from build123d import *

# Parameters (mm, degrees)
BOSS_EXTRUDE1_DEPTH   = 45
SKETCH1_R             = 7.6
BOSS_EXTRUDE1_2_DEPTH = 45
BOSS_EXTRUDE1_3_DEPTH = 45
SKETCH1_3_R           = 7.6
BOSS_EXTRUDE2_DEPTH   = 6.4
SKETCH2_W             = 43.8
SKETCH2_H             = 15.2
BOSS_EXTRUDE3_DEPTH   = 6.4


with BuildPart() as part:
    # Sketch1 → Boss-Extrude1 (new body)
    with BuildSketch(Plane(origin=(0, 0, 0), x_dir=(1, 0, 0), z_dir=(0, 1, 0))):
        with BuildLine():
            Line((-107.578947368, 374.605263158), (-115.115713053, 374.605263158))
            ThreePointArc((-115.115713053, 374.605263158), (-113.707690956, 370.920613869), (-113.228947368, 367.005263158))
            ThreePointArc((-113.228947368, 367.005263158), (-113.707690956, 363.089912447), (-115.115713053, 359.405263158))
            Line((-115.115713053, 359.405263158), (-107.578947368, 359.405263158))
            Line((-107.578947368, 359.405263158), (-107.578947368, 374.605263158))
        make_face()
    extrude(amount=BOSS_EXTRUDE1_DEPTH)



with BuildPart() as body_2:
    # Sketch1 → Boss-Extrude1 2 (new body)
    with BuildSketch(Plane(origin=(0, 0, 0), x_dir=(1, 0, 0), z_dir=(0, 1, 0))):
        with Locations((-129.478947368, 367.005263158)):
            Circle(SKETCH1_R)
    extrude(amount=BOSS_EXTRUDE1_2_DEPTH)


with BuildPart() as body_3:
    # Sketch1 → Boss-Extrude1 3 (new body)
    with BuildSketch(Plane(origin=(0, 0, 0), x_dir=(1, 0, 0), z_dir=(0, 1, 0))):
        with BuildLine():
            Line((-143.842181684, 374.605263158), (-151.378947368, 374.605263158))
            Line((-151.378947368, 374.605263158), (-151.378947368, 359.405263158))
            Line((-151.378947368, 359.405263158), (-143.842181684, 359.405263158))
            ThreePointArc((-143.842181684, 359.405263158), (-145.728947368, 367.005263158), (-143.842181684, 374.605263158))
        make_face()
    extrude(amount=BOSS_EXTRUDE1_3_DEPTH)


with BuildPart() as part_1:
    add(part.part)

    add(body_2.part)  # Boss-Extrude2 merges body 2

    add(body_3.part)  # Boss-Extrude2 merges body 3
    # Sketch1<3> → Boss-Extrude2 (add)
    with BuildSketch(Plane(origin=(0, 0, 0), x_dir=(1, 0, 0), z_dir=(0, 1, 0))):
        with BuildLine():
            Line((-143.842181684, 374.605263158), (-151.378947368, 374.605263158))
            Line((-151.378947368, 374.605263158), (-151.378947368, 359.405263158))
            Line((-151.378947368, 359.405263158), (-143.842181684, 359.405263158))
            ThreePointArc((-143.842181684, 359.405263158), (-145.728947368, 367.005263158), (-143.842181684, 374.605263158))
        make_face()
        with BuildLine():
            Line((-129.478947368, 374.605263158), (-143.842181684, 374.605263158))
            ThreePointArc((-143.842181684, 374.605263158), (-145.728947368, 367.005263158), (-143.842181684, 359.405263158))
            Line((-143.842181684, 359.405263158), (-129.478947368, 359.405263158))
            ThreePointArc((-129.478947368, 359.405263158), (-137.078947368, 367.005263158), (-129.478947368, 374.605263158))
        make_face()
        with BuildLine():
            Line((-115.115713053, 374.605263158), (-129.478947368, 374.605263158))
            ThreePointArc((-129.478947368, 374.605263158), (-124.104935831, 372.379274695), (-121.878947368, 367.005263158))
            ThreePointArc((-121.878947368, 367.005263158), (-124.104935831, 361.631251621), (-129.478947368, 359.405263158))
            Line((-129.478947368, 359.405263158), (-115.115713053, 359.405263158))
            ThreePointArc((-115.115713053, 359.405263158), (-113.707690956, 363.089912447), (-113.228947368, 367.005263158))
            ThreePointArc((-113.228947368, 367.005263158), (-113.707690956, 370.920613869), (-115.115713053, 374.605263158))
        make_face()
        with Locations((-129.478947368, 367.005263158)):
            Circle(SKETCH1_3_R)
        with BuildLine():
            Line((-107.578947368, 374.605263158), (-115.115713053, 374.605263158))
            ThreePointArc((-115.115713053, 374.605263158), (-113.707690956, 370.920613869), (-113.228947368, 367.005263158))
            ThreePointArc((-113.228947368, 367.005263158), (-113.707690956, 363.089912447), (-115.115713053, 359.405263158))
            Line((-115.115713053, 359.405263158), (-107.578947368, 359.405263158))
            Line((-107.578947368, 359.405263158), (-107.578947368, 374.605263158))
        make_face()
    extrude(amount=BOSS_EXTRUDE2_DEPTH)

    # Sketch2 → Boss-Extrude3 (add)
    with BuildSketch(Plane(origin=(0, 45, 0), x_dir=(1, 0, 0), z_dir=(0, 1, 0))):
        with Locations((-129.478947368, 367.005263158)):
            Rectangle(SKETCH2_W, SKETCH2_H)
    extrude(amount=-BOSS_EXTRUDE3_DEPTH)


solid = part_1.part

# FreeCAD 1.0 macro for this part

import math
import FreeCAD as App
import Part
import Sketcher

doc = App.newDocument("Part")
body = doc.addObject("PartDesign::Body", "Body")

sketch1 = body.newObject("Sketcher::SketchObject", "Sketch")
sketch1.AttachmentSupport = (doc.getObject("XZ_Plane"), [""])
sketch1.MapMode = "FlatFace"
sketch1.addGeometry(Part.LineSegment(App.Vector(-108, -375, 0), App.Vector(-115, -375, 0)), False)
sketch1.addGeometry(Part.ArcOfCircle(Part.Circle(App.Vector(-129, -367, 0), App.Vector(0, 0, 1), 16), math.radians(-28), math.radians(0)), False)
sketch1.addGeometry(Part.ArcOfCircle(Part.Circle(App.Vector(-129, -367, 0), App.Vector(0, 0, 1), 16), math.radians(0), math.radians(28)), False)
sketch1.addGeometry(Part.LineSegment(App.Vector(-115, -359, 0), App.Vector(-108, -359, 0)), False)
sketch1.addGeometry(Part.LineSegment(App.Vector(-108, -359, 0), App.Vector(-108, -375, 0)), False)
sketch1.addConstraint(Sketcher.Constraint("Coincident", 0, 2, 1, 1))
sketch1.addConstraint(Sketcher.Constraint("Tangent", 1, 2, 2, 1))
sketch1.addConstraint(Sketcher.Constraint("Coincident", 2, 2, 3, 1))
sketch1.addConstraint(Sketcher.Constraint("Coincident", 3, 2, 4, 1))
sketch1.addConstraint(Sketcher.Constraint("Coincident", 4, 2, 0, 1))
sketch1.addConstraint(Sketcher.Constraint("Horizontal", 0))
sketch1.addConstraint(Sketcher.Constraint("Horizontal", 3))
sketch1.addConstraint(Sketcher.Constraint("Vertical", 4))
sketch1.addConstraint(Sketcher.Constraint("Equal", 1, 2))
sketch1.addConstraint(Sketcher.Constraint("Horizontal", 2, 3, 1, 2))
sketch1.addConstraint(Sketcher.Constraint("Vertical", 0, 2, 2, 2))
sketch1.addConstraint(Sketcher.Constraint("Radius", 1, 16.25))
sketch1.addConstraint(Sketcher.Constraint("DistanceY", 4, 2, 4, 1, 15.2))
sketch1.addConstraint(Sketcher.Constraint("DistanceX", 2, 3, 3, 2, 21.9))
sketch1.addConstraint(Sketcher.Constraint("DistanceX", 1, 3, -1, 1, 129.478947))
sketch1.addConstraint(Sketcher.Constraint("DistanceY", 1, 3, -1, 1, 367.005263))
pad1 = body.newObject("PartDesign::Pad", "Pad")
pad1.Profile = sketch1
pad1.Length = 45
pad1.Reversed = True
body2 = doc.addObject("PartDesign::Body", "Body001")

sketch2 = body2.newObject("Sketcher::SketchObject", "Sketch001")
sketch2.AttachmentSupport = (doc.getObject("XZ_Plane001"), [""])
sketch2.MapMode = "FlatFace"
sketch2.addGeometry(Part.Circle(App.Vector(-129, -367, 0), App.Vector(0, 0, 1), 8), False)
sketch2.addConstraint(Sketcher.Constraint("Diameter", 0, 15.2))
sketch2.addConstraint(Sketcher.Constraint("DistanceX", 0, 3, -1, 1, 129.478947))
sketch2.addConstraint(Sketcher.Constraint("DistanceY", 0, 3, -1, 1, 367.005263))
pad2 = body2.newObject("PartDesign::Pad", "Pad001")
pad2.Profile = sketch2
pad2.Length = 45
pad2.Reversed = True
body3 = doc.addObject("PartDesign::Body", "Body002")

sketch3 = body3.newObject("Sketcher::SketchObject", "Sketch002")
sketch3.AttachmentSupport = (doc.getObject("XZ_Plane002"), [""])
sketch3.MapMode = "FlatFace"
sketch3.addGeometry(Part.LineSegment(App.Vector(-144, -375, 0), App.Vector(-151, -375, 0)), False)
sketch3.addGeometry(Part.LineSegment(App.Vector(-151, -375, 0), App.Vector(-151, -359, 0)), False)
sketch3.addGeometry(Part.LineSegment(App.Vector(-151, -359, 0), App.Vector(-144, -359, 0)), False)
sketch3.addGeometry(Part.ArcOfCircle(Part.Circle(App.Vector(-129, -367, 0), App.Vector(0, 0, 1), 16), math.radians(152), math.radians(208)), False)
sketch3.addConstraint(Sketcher.Constraint("Coincident", 0, 2, 1, 1))
sketch3.addConstraint(Sketcher.Constraint("Coincident", 1, 2, 2, 1))
sketch3.addConstraint(Sketcher.Constraint("Coincident", 2, 2, 3, 1))
sketch3.addConstraint(Sketcher.Constraint("Coincident", 3, 2, 0, 1))
sketch3.addConstraint(Sketcher.Constraint("Horizontal", 0))
sketch3.addConstraint(Sketcher.Constraint("Vertical", 1))
sketch3.addConstraint(Sketcher.Constraint("Horizontal", 2))
sketch3.addConstraint(Sketcher.Constraint("Vertical", 2, 2, 3, 2))
sketch3.addConstraint(Sketcher.Constraint("Radius", 3, 16.25))
sketch3.addConstraint(Sketcher.Constraint("DistanceY", 1, 1, 1, 2, 15.2))
sketch3.addConstraint(Sketcher.Constraint("DistanceX", 0, 2, 3, 3, 21.9))
sketch3.addConstraint(Sketcher.Constraint("DistanceX", 2, 2, -1, 1, 143.842182))
sketch3.addConstraint(Sketcher.Constraint("DistanceY", 3, 3, -1, 1, 367.005263))
pad3 = body3.newObject("PartDesign::Pad", "Pad002")
pad3.Profile = sketch3
pad3.Length = 45
pad3.Reversed = True
body.AllowCompound = True
doc.recompute()

boolean = body.newObject("PartDesign::Boolean", "Boolean")
boolean.Type = "Fuse"
boolean.addObjects([body2])
doc.recompute()

boolean2 = body.newObject("PartDesign::Boolean", "Boolean001")
boolean2.Type = "Fuse"
boolean2.addObjects([body3])

sketch4 = body.newObject("Sketcher::SketchObject", "Sketch003")
sketch4.AttachmentSupport = (doc.getObject("XZ_Plane"), [""])
sketch4.MapMode = "FlatFace"
sketch4.addGeometry(Part.LineSegment(App.Vector(-151, -375, 0), App.Vector(-151, -359, 0)), False)
sketch4.addGeometry(Part.LineSegment(App.Vector(-151, -359, 0), App.Vector(-108, -359, 0)), False)
sketch4.addGeometry(Part.LineSegment(App.Vector(-108, -359, 0), App.Vector(-108, -375, 0)), False)
sketch4.addGeometry(Part.LineSegment(App.Vector(-108, -375, 0), App.Vector(-151, -375, 0)), False)
sketch4.addConstraint(Sketcher.Constraint("Coincident", 0, 2, 1, 1))
sketch4.addConstraint(Sketcher.Constraint("Coincident", 1, 2, 2, 1))
sketch4.addConstraint(Sketcher.Constraint("Coincident", 2, 2, 3, 1))
sketch4.addConstraint(Sketcher.Constraint("Coincident", 3, 2, 0, 1))
sketch4.addConstraint(Sketcher.Constraint("Vertical", 0))
sketch4.addConstraint(Sketcher.Constraint("Horizontal", 1))
sketch4.addConstraint(Sketcher.Constraint("Vertical", 2))
sketch4.addConstraint(Sketcher.Constraint("Horizontal", 3))
sketch4.addConstraint(Sketcher.Constraint("DistanceX", 1, 1, 1, 2, 43.8))
sketch4.addConstraint(Sketcher.Constraint("DistanceY", 0, 1, 0, 2, 15.2))
sketch4.addConstraint(Sketcher.Constraint("DistanceX", 0, 2, -1, 1, 151.378947))
sketch4.addConstraint(Sketcher.Constraint("DistanceY", 0, 2, -1, 1, 359.405263))
pad4 = body.newObject("PartDesign::Pad", "Pad003")
pad4.Profile = sketch4
pad4.Length = 6.4
pad4.Reversed = True

sketch5 = body.newObject("Sketcher::SketchObject", "Sketch004")
sketch5.AttachmentSupport = (doc.getObject("XZ_Plane"), [""])
sketch5.MapMode = "FlatFace"
sketch5.AttachmentOffset = App.Placement(App.Vector(0, 0, -45), App.Rotation())
sketch5.addGeometry(Part.LineSegment(App.Vector(-151, -375, 0), App.Vector(-151, -359, 0)), False)
sketch5.addGeometry(Part.LineSegment(App.Vector(-151, -359, 0), App.Vector(-108, -359, 0)), False)
sketch5.addGeometry(Part.LineSegment(App.Vector(-108, -359, 0), App.Vector(-108, -375, 0)), False)
sketch5.addGeometry(Part.LineSegment(App.Vector(-108, -375, 0), App.Vector(-151, -375, 0)), False)
sketch5.addConstraint(Sketcher.Constraint("Coincident", 0, 2, 1, 1))
sketch5.addConstraint(Sketcher.Constraint("Coincident", 1, 2, 2, 1))
sketch5.addConstraint(Sketcher.Constraint("Coincident", 2, 2, 3, 1))
sketch5.addConstraint(Sketcher.Constraint("Coincident", 3, 2, 0, 1))
sketch5.addConstraint(Sketcher.Constraint("Vertical", 0))
sketch5.addConstraint(Sketcher.Constraint("Horizontal", 1))
sketch5.addConstraint(Sketcher.Constraint("Vertical", 2))
sketch5.addConstraint(Sketcher.Constraint("Horizontal", 3))
sketch5.addConstraint(Sketcher.Constraint("DistanceX", 1, 1, 1, 2, 43.8))
sketch5.addConstraint(Sketcher.Constraint("DistanceY", 0, 1, 0, 2, 15.2))
sketch5.addConstraint(Sketcher.Constraint("DistanceX", 0, 2, -1, 1, 151.378947))
sketch5.addConstraint(Sketcher.Constraint("DistanceY", 0, 2, -1, 1, 359.405263))
pad5 = body.newObject("PartDesign::Pad", "Pad004")
pad5.Profile = sketch5
pad5.Length = 6.4

doc.recompute()
